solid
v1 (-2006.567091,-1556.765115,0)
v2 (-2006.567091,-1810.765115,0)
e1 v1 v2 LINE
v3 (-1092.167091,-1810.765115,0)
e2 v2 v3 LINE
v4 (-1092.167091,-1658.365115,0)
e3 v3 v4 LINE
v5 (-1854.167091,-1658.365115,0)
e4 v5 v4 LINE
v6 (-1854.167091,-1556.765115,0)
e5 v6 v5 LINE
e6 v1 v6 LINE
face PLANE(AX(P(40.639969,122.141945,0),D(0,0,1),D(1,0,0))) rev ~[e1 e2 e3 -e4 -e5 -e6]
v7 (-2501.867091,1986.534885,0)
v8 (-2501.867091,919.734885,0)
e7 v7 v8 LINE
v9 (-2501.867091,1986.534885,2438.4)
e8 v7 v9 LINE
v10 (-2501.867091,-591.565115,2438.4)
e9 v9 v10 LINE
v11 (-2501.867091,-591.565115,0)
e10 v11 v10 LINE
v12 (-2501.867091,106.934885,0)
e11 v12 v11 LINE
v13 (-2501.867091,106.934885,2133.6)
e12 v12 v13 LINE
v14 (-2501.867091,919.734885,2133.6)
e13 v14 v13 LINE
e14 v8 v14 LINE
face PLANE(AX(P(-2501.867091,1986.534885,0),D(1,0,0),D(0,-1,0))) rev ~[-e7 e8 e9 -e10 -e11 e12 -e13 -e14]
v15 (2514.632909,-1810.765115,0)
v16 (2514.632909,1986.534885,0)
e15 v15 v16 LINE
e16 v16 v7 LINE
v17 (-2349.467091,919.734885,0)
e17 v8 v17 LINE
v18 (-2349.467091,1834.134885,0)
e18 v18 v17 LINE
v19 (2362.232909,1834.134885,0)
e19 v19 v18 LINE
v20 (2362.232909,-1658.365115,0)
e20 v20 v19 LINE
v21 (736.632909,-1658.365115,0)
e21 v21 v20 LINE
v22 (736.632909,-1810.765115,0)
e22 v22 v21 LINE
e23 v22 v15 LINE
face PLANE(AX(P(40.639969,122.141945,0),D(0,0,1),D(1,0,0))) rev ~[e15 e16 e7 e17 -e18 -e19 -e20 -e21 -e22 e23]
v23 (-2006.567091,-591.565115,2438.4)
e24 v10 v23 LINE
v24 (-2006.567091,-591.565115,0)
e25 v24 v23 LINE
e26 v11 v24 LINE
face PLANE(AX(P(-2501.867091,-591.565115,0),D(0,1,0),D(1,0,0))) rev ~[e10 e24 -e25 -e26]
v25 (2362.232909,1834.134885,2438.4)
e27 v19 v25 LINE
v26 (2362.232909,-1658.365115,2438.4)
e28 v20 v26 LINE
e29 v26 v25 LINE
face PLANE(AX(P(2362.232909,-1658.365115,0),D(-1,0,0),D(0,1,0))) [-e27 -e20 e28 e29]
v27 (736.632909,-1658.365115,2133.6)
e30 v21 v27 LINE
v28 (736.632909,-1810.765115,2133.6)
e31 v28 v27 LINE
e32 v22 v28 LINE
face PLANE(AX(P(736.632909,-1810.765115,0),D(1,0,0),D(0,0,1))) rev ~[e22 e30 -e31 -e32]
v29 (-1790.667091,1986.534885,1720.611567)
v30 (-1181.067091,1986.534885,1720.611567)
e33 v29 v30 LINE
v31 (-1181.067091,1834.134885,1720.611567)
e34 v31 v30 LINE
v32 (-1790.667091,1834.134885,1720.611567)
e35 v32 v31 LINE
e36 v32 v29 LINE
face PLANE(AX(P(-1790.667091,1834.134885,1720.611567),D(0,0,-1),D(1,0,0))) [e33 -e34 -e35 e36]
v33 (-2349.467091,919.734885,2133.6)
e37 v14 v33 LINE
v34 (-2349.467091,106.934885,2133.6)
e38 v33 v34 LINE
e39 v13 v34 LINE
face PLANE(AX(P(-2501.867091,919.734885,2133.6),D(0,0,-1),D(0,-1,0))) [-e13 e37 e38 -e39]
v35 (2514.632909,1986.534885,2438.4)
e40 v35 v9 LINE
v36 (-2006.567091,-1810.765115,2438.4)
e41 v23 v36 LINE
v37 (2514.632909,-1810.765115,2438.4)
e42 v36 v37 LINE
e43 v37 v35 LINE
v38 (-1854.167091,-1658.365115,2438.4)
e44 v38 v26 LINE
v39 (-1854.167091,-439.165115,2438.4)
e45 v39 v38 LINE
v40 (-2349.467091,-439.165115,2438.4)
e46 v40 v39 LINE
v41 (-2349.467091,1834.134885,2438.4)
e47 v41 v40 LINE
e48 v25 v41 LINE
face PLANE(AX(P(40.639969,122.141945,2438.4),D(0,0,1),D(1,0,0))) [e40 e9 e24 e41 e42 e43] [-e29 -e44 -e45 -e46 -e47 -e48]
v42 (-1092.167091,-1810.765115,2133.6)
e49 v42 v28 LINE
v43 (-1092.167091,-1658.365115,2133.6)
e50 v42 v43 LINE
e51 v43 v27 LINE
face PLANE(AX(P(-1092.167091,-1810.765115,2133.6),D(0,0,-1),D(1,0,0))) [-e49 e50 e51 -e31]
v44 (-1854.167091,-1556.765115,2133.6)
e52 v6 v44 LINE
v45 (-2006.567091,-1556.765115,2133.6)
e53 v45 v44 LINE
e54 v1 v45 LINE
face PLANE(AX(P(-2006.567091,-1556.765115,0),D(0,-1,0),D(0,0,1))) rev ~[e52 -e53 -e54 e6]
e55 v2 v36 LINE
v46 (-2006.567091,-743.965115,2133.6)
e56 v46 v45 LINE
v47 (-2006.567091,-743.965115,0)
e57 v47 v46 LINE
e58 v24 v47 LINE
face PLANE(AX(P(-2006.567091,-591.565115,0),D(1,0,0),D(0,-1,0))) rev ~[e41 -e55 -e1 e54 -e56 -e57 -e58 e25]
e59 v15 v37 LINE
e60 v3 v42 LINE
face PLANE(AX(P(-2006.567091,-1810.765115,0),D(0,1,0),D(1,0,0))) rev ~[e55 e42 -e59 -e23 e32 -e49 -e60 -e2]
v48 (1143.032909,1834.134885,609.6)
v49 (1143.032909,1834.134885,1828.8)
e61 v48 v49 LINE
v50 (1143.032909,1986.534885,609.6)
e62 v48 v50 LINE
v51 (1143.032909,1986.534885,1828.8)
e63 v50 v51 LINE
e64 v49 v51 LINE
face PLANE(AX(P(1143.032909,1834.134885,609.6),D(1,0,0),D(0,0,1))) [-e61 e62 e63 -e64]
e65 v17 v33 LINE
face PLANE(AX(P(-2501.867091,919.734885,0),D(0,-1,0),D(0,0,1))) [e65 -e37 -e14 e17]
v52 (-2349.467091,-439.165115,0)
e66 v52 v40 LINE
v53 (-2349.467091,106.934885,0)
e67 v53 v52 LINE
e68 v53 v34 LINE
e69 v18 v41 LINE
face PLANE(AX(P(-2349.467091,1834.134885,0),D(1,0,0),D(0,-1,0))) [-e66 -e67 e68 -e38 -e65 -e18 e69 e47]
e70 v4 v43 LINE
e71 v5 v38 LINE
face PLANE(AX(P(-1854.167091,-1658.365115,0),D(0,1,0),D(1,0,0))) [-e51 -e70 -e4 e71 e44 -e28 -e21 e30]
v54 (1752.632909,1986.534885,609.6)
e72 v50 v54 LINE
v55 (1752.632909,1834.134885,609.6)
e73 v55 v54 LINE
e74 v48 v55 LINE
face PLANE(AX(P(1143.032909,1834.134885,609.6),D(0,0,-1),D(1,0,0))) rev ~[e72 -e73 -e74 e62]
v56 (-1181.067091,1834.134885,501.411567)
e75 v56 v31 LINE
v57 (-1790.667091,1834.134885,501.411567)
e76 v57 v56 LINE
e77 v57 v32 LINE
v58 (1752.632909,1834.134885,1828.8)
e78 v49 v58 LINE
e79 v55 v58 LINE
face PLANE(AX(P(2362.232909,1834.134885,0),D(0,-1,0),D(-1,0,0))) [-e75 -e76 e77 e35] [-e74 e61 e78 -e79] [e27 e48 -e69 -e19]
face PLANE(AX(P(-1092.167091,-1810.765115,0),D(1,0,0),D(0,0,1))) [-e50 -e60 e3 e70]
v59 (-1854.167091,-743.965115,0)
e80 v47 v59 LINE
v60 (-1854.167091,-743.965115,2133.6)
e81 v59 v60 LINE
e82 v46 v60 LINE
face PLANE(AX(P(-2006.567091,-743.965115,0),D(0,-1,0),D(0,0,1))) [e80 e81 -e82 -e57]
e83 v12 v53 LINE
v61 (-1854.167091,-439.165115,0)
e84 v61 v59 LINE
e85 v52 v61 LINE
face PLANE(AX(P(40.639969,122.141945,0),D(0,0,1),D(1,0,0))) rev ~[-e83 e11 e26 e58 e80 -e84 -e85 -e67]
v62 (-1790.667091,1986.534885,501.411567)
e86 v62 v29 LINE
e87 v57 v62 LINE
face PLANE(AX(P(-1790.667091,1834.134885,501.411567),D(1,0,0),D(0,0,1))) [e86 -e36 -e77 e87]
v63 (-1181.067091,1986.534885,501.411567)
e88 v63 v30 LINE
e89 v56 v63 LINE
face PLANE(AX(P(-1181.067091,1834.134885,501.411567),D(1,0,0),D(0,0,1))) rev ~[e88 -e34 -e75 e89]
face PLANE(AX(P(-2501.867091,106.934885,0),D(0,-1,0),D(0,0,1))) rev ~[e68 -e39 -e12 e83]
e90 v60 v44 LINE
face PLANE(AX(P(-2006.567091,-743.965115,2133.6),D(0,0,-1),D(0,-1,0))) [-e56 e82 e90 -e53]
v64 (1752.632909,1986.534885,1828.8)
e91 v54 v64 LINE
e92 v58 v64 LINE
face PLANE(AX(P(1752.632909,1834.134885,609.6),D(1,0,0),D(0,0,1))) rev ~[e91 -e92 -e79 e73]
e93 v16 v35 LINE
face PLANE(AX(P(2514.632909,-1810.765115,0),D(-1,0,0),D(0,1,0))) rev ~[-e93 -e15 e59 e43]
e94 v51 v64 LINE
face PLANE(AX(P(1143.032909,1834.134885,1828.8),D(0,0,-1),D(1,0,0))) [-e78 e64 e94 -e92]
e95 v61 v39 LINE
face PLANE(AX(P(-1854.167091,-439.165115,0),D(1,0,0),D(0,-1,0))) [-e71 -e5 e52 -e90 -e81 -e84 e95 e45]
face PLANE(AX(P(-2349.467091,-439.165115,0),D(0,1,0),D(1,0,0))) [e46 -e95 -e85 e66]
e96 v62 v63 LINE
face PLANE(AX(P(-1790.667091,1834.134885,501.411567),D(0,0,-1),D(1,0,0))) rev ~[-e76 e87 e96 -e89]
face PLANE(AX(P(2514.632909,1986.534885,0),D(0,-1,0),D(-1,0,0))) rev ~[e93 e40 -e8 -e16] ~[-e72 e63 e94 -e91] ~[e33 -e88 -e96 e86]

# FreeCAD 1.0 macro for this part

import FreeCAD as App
import Part
import Sketcher
Q = App.Units.Quantity


def add_polygon(sketch, points):
    """Adds a closed chain of lines whose ends are joined by coincident constraints."""
    first, n = sketch.GeometryCount, len(points)
    for a, b in zip(points, points[1:] + points[:1]):
        sketch.addGeometry(Part.LineSegment(App.Vector(*a, 0), App.Vector(*b, 0)), False)
    for i in range(n):
        sketch.addConstraint(Sketcher.Constraint("Coincident", first + i, 2, first + (i + 1) % n, 1))

doc = App.newDocument("Part")
body = doc.addObject("PartDesign::Body", "Body")

# Sketch on XY plane
sketch1 = body.newObject("Sketcher::SketchObject", "Sketch")
sketch1.AttachmentSupport = (doc.getObject("XY_Plane"), [""])
sketch1.MapMode = "FlatFace"
add_polygon(sketch1, [(2362.232909, -1658.365115), (2362.232909, 1834.134885), (-2349.467091, 1834.134885), (-2349.467091, -439.165115), (-1854.167091, -439.165115), (-1854.167091, -1658.365115)])  # lines 0-5
sketch1.addConstraint([
    Sketcher.Constraint("Vertical", 0),
    Sketcher.Constraint("Horizontal", 1),
    Sketcher.Constraint("Vertical", 2),
    Sketcher.Constraint("Horizontal", 3),
    Sketcher.Constraint("Vertical", 4),
    Sketcher.Constraint("Horizontal", 5),
    Sketcher.Constraint("DistanceX", 5, 1, 5, 2, Q("166 in")),
    Sketcher.Constraint("DistanceY", 4, 2, 4, 1, Q("48 in")),
    Sketcher.Constraint("DistanceX", 1, 2, 1, 1, Q("185.5 in")),
    Sketcher.Constraint("DistanceY", 0, 1, 0, 2, Q("137.5 in")),
    Sketcher.Constraint("DistanceX", -1, 1, 0, 2, Q("2362.232909 mm")),
    Sketcher.Constraint("DistanceY", -1, 1, 0, 2, Q("1834.134885 mm")),
])
pad1 = body.newObject("PartDesign::Pad", "Pad")
pad1.Profile = sketch1
pad1.Length = Q("96 in")
body2 = doc.addObject("PartDesign::Body", "Body001")

# Sketch on XY plane
sketch2 = body2.newObject("Sketcher::SketchObject", "Sketch001")
sketch2.AttachmentSupport = (doc.getObject("XY_Plane001"), [""])
sketch2.MapMode = "FlatFace"
add_polygon(sketch2, [(2514.632909, -1810.765115), (2514.632909, 1986.534885), (-2501.867091, 1986.534885), (-2501.867091, -591.565115), (-2006.567091, -591.565115), (-2006.567091, -1810.765115)])  # lines 0-5
sketch2.addConstraint([
    Sketcher.Constraint("Vertical", 0),
    Sketcher.Constraint("Horizontal", 1),
    Sketcher.Constraint("Vertical", 2),
    Sketcher.Constraint("Horizontal", 3),
    Sketcher.Constraint("Vertical", 4),
    Sketcher.Constraint("Horizontal", 5),
    Sketcher.Constraint("DistanceX", 5, 1, 5, 2, Q("178 in")),
    Sketcher.Constraint("DistanceY", 4, 2, 4, 1, Q("48 in")),
    Sketcher.Constraint("DistanceX", 1, 2, 1, 1, Q("197.5 in")),
    Sketcher.Constraint("DistanceY", 0, 1, 0, 2, Q("149.5 in")),
    Sketcher.Constraint("DistanceX", -1, 1, 0, 2, Q("2514.632909 mm")),
    Sketcher.Constraint("DistanceY", -1, 1, 0, 2, Q("1986.534885 mm")),
])
pad2 = body2.newObject("PartDesign::Pad", "Pad001")
pad2.Profile = sketch2
pad2.Length = Q("96 in")

# Sketch on XY plane
sketch3 = body2.newObject("Sketcher::SketchObject", "Sketch002")
sketch3.AttachmentSupport = (doc.getObject("XY_Plane001"), [""])
sketch3.MapMode = "FlatFace"
add_polygon(sketch3, [(-1854.167091, -1658.365115), (2362.232909, -1658.365115), (2362.232909, 1834.134885), (-2349.467091, 1834.134885), (-2349.467091, -439.165115), (-1854.167091, -439.165115)])  # lines 0-5
sketch3.addConstraint([
    Sketcher.Constraint("Horizontal", 0),
    Sketcher.Constraint("Vertical", 1),
    Sketcher.Constraint("Horizontal", 2),
    Sketcher.Constraint("Vertical", 3),
    Sketcher.Constraint("Horizontal", 4),
    Sketcher.Constraint("Vertical", 5),
    Sketcher.Constraint("DistanceX", 0, 1, 0, 2, Q("166 in")),
    Sketcher.Constraint("DistanceY", 5, 2, 5, 1, Q("48 in")),
    Sketcher.Constraint("DistanceX", 2, 2, 2, 1, Q("185.5 in")),
    Sketcher.Constraint("DistanceY", 1, 1, 1, 2, Q("137.5 in")),
    Sketcher.Constraint("DistanceX", -1, 1, 0, 2, Q("2362.232909 mm")),
    Sketcher.Constraint("DistanceY", 0, 2, -1, 1, Q("1658.365115 mm")),
])
pocket1 = body2.newObject("PartDesign::Pocket", "Pocket")
pocket1.Profile = sketch3
pocket1.Length = Q("96 in")
pocket1.Reversed = True

# Sketch on XZ plane
sketch4 = body2.newObject("Sketcher::SketchObject", "Sketch003")
sketch4.AttachmentSupport = (doc.getObject("XZ_Plane001"), [""])
sketch4.MapMode = "FlatFace"
sketch4.AttachmentOffset = App.Placement(App.Vector(0, 0, -1834.134885), App.Rotation())
add_polygon(sketch4, [(1143.032909, 1828.8), (1143.032909, 609.6), (1752.632909, 609.6), (1752.632909, 1828.8)])  # lines 0-3
add_polygon(sketch4, [(-1790.667091, 1720.611567), (-1790.667091, 501.411567), (-1181.067091, 501.411567), (-1181.067091, 1720.611567)])  # lines 4-7
sketch4.addConstraint([
    Sketcher.Constraint("Vertical", 0),
    Sketcher.Constraint("Horizontal", 1),
    Sketcher.Constraint("Vertical", 2),
    Sketcher.Constraint("Horizontal", 3),
    Sketcher.Constraint("Vertical", 4),
    Sketcher.Constraint("Horizontal", 5),
    Sketcher.Constraint("Vertical", 6),
    Sketcher.Constraint("Horizontal", 7),
    Sketcher.Constraint("Equal", 3, 5),
    Sketcher.Constraint("Equal", 2, 4),
    Sketcher.Constraint("DistanceX", 1, 1, 1, 2, Q("24 in")),
    Sketcher.Constraint("DistanceY", 0, 2, 0, 1, Q("48 in")),
    Sketcher.Constraint("DistanceY", -1, 1, 0, 2, Q("24 in")),
    Sketcher.Constraint("DistanceX", 4, 2, 0, 2, Q("115.5 in")),
    Sketcher.Constraint("DistanceX", -1, 1, 0, 2, Q("1143.032909 mm")),
    Sketcher.Constraint("DistanceY", -1, 1, 4, 2, Q("501.411567 mm")),
])
pocket2 = body2.newObject("PartDesign::Pocket", "Pocket001")
pocket2.Profile = sketch4
pocket2.Length = 1252.948241

# Sketch on XZ plane
sketch5 = body2.newObject("Sketcher::SketchObject", "Sketch004")
sketch5.AttachmentSupport = (doc.getObject("XZ_Plane001"), [""])
sketch5.MapMode = "FlatFace"
sketch5.AttachmentOffset = App.Placement(App.Vector(0, 0, 1810.765115), App.Rotation())
add_polygon(sketch5, [(-1092.167091, 2133.6), (-1092.167091, 0), (736.632909, 0), (736.632909, 2133.6)])  # lines 0-3
sketch5.addConstraint([
    Sketcher.Constraint("Vertical", 0),
    Sketcher.Constraint("Horizontal", 1),
    Sketcher.Constraint("Vertical", 2),
    Sketcher.Constraint("Horizontal", 3),
    Sketcher.Constraint("PointOnObject", 0, 2, -1),
    Sketcher.Constraint("DistanceX", 1, 1, 1, 2, Q("72 in")),
    Sketcher.Constraint("DistanceY", 0, 2, 0, 1, Q("84 in")),
    Sketcher.Constraint("DistanceX", 0, 2, -1, 1, Q("1092.167091 mm")),
])
pocket3 = body2.newObject("PartDesign::Pocket", "Pocket002")
pocket3.Profile = sketch5
pocket3.Length = Q("6 in")

# Sketch on YZ plane
sketch6 = body2.newObject("Sketcher::SketchObject", "Sketch005")
sketch6.AttachmentSupport = (doc.getObject("YZ_Plane001"), [""])
sketch6.MapMode = "FlatFace"
sketch6.AttachmentOffset = App.Placement(App.Vector(0, 0, -2006.567091), App.Rotation())
add_polygon(sketch6, [(-743.965115, 2133.6), (-743.965115, 0), (-1556.765115, 0), (-1556.765115, 2133.6)])  # lines 0-3
sketch6.addConstraint([
    Sketcher.Constraint("Vertical", 0),
    Sketcher.Constraint("Horizontal", 1),
    Sketcher.Constraint("Vertical", 2),
    Sketcher.Constraint("Horizontal", 3),
    Sketcher.Constraint("PointOnObject", 0, 2, -1),
    Sketcher.Constraint("DistanceX", 1, 2, 1, 1, Q("32 in")),
    Sketcher.Constraint("DistanceY", 0, 2, 0, 1, Q("84 in")),
    Sketcher.Constraint("DistanceX", 0, 2, -1, 1, Q("743.965115 mm")),
])
pocket4 = body2.newObject("PartDesign::Pocket", "Pocket003")
pocket4.Profile = sketch6
pocket4.Length = Q("6 in")
pocket4.Reversed = True

# Sketch on YZ plane
sketch7 = body2.newObject("Sketcher::SketchObject", "Sketch006")
sketch7.AttachmentSupport = (doc.getObject("YZ_Plane001"), [""])
sketch7.MapMode = "FlatFace"
sketch7.AttachmentOffset = App.Placement(App.Vector(0, 0, -2501.867091), App.Rotation())
add_polygon(sketch7, [(919.734885, 2133.6), (919.734885, 0), (106.934885, 0), (106.934885, 2133.6)])  # lines 0-3
sketch7.addConstraint([
    Sketcher.Constraint("Vertical", 0),
    Sketcher.Constraint("Horizontal", 1),
    Sketcher.Constraint("Vertical", 2),
    Sketcher.Constraint("Horizontal", 3),
    Sketcher.Constraint("PointOnObject", 0, 2, -1),
    Sketcher.Constraint("DistanceX", 1, 2, 1, 1, Q("32 in")),
    Sketcher.Constraint("DistanceY", 0, 2, 0, 1, Q("84 in")),
    Sketcher.Constraint("DistanceX", -1, 1, 0, 2, Q("919.734885 mm")),
])
pocket5 = body2.newObject("PartDesign::Pocket", "Pocket004")
pocket5.Profile = sketch7
pocket5.Length = Q("6 in")
pocket5.Reversed = True
body.Visibility = False

doc.recompute()
